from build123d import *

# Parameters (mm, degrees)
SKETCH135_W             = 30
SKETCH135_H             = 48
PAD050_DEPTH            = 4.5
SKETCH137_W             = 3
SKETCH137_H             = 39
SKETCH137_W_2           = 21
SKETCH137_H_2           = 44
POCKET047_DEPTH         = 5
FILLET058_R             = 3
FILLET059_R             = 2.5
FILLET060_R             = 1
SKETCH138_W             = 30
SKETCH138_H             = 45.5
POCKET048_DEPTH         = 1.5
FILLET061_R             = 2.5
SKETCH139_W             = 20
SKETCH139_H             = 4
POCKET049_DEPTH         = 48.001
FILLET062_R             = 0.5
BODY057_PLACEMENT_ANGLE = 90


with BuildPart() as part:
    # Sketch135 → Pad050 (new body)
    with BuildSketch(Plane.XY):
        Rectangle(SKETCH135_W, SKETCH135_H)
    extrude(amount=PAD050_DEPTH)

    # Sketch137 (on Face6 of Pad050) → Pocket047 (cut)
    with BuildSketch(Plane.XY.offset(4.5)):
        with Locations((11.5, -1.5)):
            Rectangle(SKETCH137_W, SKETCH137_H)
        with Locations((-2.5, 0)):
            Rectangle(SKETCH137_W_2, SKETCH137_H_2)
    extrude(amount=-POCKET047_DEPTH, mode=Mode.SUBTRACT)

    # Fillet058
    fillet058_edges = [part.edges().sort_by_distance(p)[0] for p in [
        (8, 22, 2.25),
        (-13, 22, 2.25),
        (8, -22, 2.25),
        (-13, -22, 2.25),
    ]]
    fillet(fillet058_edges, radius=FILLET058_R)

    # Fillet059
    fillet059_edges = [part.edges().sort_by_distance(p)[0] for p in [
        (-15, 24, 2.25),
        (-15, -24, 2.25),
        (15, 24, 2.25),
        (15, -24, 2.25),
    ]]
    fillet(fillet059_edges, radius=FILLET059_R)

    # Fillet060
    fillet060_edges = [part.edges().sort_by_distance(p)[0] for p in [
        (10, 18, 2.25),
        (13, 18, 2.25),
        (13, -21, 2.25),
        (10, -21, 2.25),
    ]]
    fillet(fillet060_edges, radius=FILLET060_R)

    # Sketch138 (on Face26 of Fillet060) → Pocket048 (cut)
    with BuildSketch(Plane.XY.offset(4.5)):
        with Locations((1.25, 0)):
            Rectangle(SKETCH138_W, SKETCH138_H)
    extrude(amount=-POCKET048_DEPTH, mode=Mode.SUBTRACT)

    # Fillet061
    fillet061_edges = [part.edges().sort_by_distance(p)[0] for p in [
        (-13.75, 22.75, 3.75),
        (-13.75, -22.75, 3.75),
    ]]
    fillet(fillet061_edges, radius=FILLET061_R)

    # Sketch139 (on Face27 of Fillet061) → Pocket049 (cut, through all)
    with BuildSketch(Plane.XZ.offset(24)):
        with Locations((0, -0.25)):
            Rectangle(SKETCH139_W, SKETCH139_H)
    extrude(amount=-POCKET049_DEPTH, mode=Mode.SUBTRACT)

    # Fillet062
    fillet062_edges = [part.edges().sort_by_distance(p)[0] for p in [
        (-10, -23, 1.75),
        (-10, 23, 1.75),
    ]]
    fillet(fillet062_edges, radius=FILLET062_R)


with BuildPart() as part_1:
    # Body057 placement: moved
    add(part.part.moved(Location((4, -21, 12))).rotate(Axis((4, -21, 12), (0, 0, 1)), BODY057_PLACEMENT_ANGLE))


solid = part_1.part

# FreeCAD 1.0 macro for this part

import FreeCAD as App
import Part
import Sketcher
Q = App.Units.Quantity


def edges_at(feature, points):
    """Names of the edges that pass closest to the given points."""
    edges = feature.Shape.Edges
    near = lambda p: min(range(len(edges)), key=lambda i: edges[i].distToShape(Part.Vertex(*p))[0])
    return sorted({f"Edge{near(p) + 1}" for p in points})

doc = App.newDocument("Part")
body = doc.addObject("PartDesign::Body", "Body")

# Sketch on XY plane
sketch1 = doc.addObject("Sketcher::SketchObject", "Sketch")
body.addObject(sketch1)
sketch1.AttachmentSupport = (doc.XY_Plane, [""])
sketch1.MapMode = "FlatFace"
sketch1.addGeometry(Part.LineSegment(App.Vector(-15, 24, 0), App.Vector(-15, -24, 0)), False)
sketch1.addGeometry(Part.LineSegment(App.Vector(-15, -24, 0), App.Vector(15, -24, 0)), False)
sketch1.addGeometry(Part.LineSegment(App.Vector(15, -24, 0), App.Vector(15, 24, 0)), False)
sketch1.addGeometry(Part.LineSegment(App.Vector(15, 24, 0), App.Vector(-15, 24, 0)), False)
sketch1.addConstraint(Sketcher.Constraint("Coincident", 0, 2, 1, 1))
sketch1.addConstraint(Sketcher.Constraint("Coincident", 1, 2, 2, 1))
sketch1.addConstraint(Sketcher.Constraint("Coincident", 2, 2, 3, 1))
sketch1.addConstraint(Sketcher.Constraint("Coincident", 3, 2, 0, 1))
sketch1.addConstraint(Sketcher.Constraint("Vertical", 0))
sketch1.addConstraint(Sketcher.Constraint("Horizontal", 1))
sketch1.addConstraint(Sketcher.Constraint("Vertical", 2))
sketch1.addConstraint(Sketcher.Constraint("Horizontal", 3))
sketch1.addConstraint(Sketcher.Constraint("Symmetric", 0, 2, 2, 2, -1, 1))
sketch1.addConstraint(Sketcher.Constraint("DistanceX", 1, 1, 1, 2, Q("30 mm")))
sketch1.addConstraint(Sketcher.Constraint("DistanceY", 0, 2, 0, 1, Q("48 mm")))
pad1 = doc.addObject("PartDesign::Pad", "Pad")
body.addObject(pad1)
pad1.Profile = sketch1
pad1.Length = 4.5

# Sketch on XY plane
sketch2 = doc.addObject("Sketcher::SketchObject", "Sketch001")
body.addObject(sketch2)
sketch2.AttachmentSupport = (doc.XY_Plane, [""])
sketch2.MapMode = "FlatFace"
sketch2.AttachmentOffset = App.Placement(App.Vector(0, 0, 4.5), App.Rotation())
sketch2.addGeometry(Part.LineSegment(App.Vector(10, 18, 0), App.Vector(10, -21, 0)), False)
sketch2.addGeometry(Part.LineSegment(App.Vector(10, -21, 0), App.Vector(13, -21, 0)), False)
sketch2.addGeometry(Part.LineSegment(App.Vector(13, -21, 0), App.Vector(13, 18, 0)), False)
sketch2.addGeometry(Part.LineSegment(App.Vector(13, 18, 0), App.Vector(10, 18, 0)), False)
sketch2.addGeometry(Part.LineSegment(App.Vector(-13, 22, 0), App.Vector(-13, -22, 0)), False)
sketch2.addGeometry(Part.LineSegment(App.Vector(-13, -22, 0), App.Vector(8, -22, 0)), False)
sketch2.addGeometry(Part.LineSegment(App.Vector(8, -22, 0), App.Vector(8, 22, 0)), False)
sketch2.addGeometry(Part.LineSegment(App.Vector(8, 22, 0), App.Vector(-13, 22, 0)), False)
sketch2.addConstraint(Sketcher.Constraint("Coincident", 0, 2, 1, 1))
sketch2.addConstraint(Sketcher.Constraint("Coincident", 1, 2, 2, 1))
sketch2.addConstraint(Sketcher.Constraint("Coincident", 2, 2, 3, 1))
sketch2.addConstraint(Sketcher.Constraint("Coincident", 3, 2, 0, 1))
sketch2.addConstraint(Sketcher.Constraint("Coincident", 4, 2, 5, 1))
sketch2.addConstraint(Sketcher.Constraint("Coincident", 5, 2, 6, 1))
sketch2.addConstraint(Sketcher.Constraint("Coincident", 6, 2, 7, 1))
sketch2.addConstraint(Sketcher.Constraint("Coincident", 7, 2, 4, 1))
sketch2.addConstraint(Sketcher.Constraint("Vertical", 0))
sketch2.addConstraint(Sketcher.Constraint("Horizontal", 1))
sketch2.addConstraint(Sketcher.Constraint("Vertical", 2))
sketch2.addConstraint(Sketcher.Constraint("Horizontal", 3))
sketch2.addConstraint(Sketcher.Constraint("Vertical", 4))
sketch2.addConstraint(Sketcher.Constraint("Horizontal", 5))
sketch2.addConstraint(Sketcher.Constraint("Vertical", 6))
sketch2.addConstraint(Sketcher.Constraint("Horizontal", 7))
sketch2.addConstraint(Sketcher.Constraint("DistanceX", 1, 1, 1, 2, Q("3 mm")))
sketch2.addConstraint(Sketcher.Constraint("DistanceX", 5, 1, 5, 2, Q("21 mm")))
sketch2.addConstraint(Sketcher.Constraint("DistanceY", 0, 2, 0, 1, Q("39 mm")))
sketch2.addConstraint(Sketcher.Constraint("DistanceY", 4, 2, 4, 1, Q("44 mm")))
sketch2.addConstraint(Sketcher.Constraint("DistanceX", -1, 1, 0, 2, Q("10 mm")))
sketch2.addConstraint(Sketcher.Constraint("DistanceY", 0, 2, -1, 1, Q("21 mm")))
sketch2.addConstraint(Sketcher.Constraint("DistanceX", 4, 2, -1, 1, Q("13 mm")))
sketch2.addConstraint(Sketcher.Constraint("DistanceY", 4, 2, -1, 1, Q("22 mm")))
pocket1 = doc.addObject("PartDesign::Pocket", "Pocket")
body.addObject(pocket1)
pocket1.Profile = sketch2
pocket1.Length = 5
doc.recompute()

fillet = doc.addObject("PartDesign::Fillet", "Fillet")
body.addObject(fillet)
fillet.Base = (pocket1, edges_at(pocket1, [
    (8, 22, 2.25),
    (-13, 22, 2.25),
    (8, -22, 2.25),
    (-13, -22, 2.25),
]))
fillet.Radius = 3
doc.recompute()

fillet2 = doc.addObject("PartDesign::Fillet", "Fillet001")
body.addObject(fillet2)
fillet2.Base = (fillet, edges_at(fillet, [
    (-15, 24, 2.25),
    (-15, -24, 2.25),
    (15, 24, 2.25),
    (15, -24, 2.25),
]))
fillet2.Radius = 2.5
doc.recompute()

fillet3 = doc.addObject("PartDesign::Fillet", "Fillet002")
body.addObject(fillet3)
fillet3.Base = (fillet2, edges_at(fillet2, [
    (10, 18, 2.25),
    (13, 18, 2.25),
    (13, -21, 2.25),
    (10, -21, 2.25),
]))
fillet3.Radius = 1

# Sketch on XY plane
sketch3 = doc.addObject("Sketcher::SketchObject", "Sketch002")
body.addObject(sketch3)
sketch3.AttachmentSupport = (doc.XY_Plane, [""])
sketch3.MapMode = "FlatFace"
sketch3.AttachmentOffset = App.Placement(App.Vector(0, 0, 4.5), App.Rotation())
sketch3.addGeometry(Part.LineSegment(App.Vector(-14, 23, 0), App.Vector(-14, -23, 0)), False)
sketch3.addGeometry(Part.LineSegment(App.Vector(-14, -23, 0), App.Vector(16, -23, 0)), False)
sketch3.addGeometry(Part.LineSegment(App.Vector(16, -23, 0), App.Vector(16, 23, 0)), False)
sketch3.addGeometry(Part.LineSegment(App.Vector(16, 23, 0), App.Vector(-14, 23, 0)), False)
sketch3.addConstraint(Sketcher.Constraint("Coincident", 0, 2, 1, 1))
sketch3.addConstraint(Sketcher.Constraint("Coincident", 1, 2, 2, 1))
sketch3.addConstraint(Sketcher.Constraint("Coincident", 2, 2, 3, 1))
sketch3.addConstraint(Sketcher.Constraint("Coincident", 3, 2, 0, 1))
sketch3.addConstraint(Sketcher.Constraint("Vertical", 0))
sketch3.addConstraint(Sketcher.Constraint("Horizontal", 1))
sketch3.addConstraint(Sketcher.Constraint("Vertical", 2))
sketch3.addConstraint(Sketcher.Constraint("Horizontal", 3))
sketch3.addConstraint(Sketcher.Constraint("DistanceX", 1, 1, 1, 2, Q("30 mm")))
sketch3.addConstraint(Sketcher.Constraint("DistanceY", 0, 2, 0, 1, Q("45.5 mm")))
sketch3.addConstraint(Sketcher.Constraint("DistanceX", 0, 2, -1, 1, Q("13.75 mm")))
sketch3.addConstraint(Sketcher.Constraint("DistanceY", 0, 2, -1, 1, Q("22.75 mm")))
pocket2 = doc.addObject("PartDesign::Pocket", "Pocket001")
body.addObject(pocket2)
pocket2.Profile = sketch3
pocket2.Length = 1.5
doc.recompute()

fillet4 = doc.addObject("PartDesign::Fillet", "Fillet003")
body.addObject(fillet4)
fillet4.Base = (pocket2, edges_at(pocket2, [(-13.75, 22.75, 3.75), (-13.75, -22.75, 3.75)]))
fillet4.Radius = 2.5

# Sketch on XZ plane
sketch4 = doc.addObject("Sketcher::SketchObject", "Sketch003")
body.addObject(sketch4)
sketch4.AttachmentSupport = (doc.XZ_Plane, [""])
sketch4.MapMode = "FlatFace"
sketch4.AttachmentOffset = App.Placement(App.Vector(0, 0, 24), App.Rotation())
sketch4.addGeometry(Part.LineSegment(App.Vector(-10, 1.8, 0), App.Vector(-10, -2.2, 0)), False)
sketch4.addGeometry(Part.LineSegment(App.Vector(-10, -2.2, 0), App.Vector(10, -2.2, 0)), False)
sketch4.addGeometry(Part.LineSegment(App.Vector(10, -2.2, 0), App.Vector(10, 1.8, 0)), False)
sketch4.addGeometry(Part.LineSegment(App.Vector(10, 1.8, 0), App.Vector(-10, 1.8, 0)), False)
sketch4.addConstraint(Sketcher.Constraint("Coincident", 0, 2, 1, 1))
sketch4.addConstraint(Sketcher.Constraint("Coincident", 1, 2, 2, 1))
sketch4.addConstraint(Sketcher.Constraint("Coincident", 2, 2, 3, 1))
sketch4.addConstraint(Sketcher.Constraint("Coincident", 3, 2, 0, 1))
sketch4.addConstraint(Sketcher.Constraint("Vertical", 0))
sketch4.addConstraint(Sketcher.Constraint("Horizontal", 1))
sketch4.addConstraint(Sketcher.Constraint("Vertical", 2))
sketch4.addConstraint(Sketcher.Constraint("Horizontal", 3))
sketch4.addConstraint(Sketcher.Constraint("DistanceX", 1, 1, 1, 2, Q("20 mm")))
sketch4.addConstraint(Sketcher.Constraint("DistanceY", 0, 2, 0, 1, Q("4 mm")))
sketch4.addConstraint(Sketcher.Constraint("DistanceX", 0, 2, -1, 1, Q("10 mm")))
sketch4.addConstraint(Sketcher.Constraint("DistanceY", 0, 2, -1, 1, Q("2.25 mm")))
pocket3 = doc.addObject("PartDesign::Pocket", "Pocket002")
body.addObject(pocket3)
pocket3.Profile = sketch4
pocket3.Type = "ThroughAll"
doc.recompute()

fillet5 = doc.addObject("PartDesign::Fillet", "Fillet004")
body.addObject(fillet5)
fillet5.Base = (pocket3, edges_at(pocket3, [(-10, -23, 1.75), (-10, 23, 1.75)]))
fillet5.Radius = 0.5
body2 = doc.addObject("PartDesign::Body", "Body001")
doc.recompute()

body.Placement = App.Placement(App.Vector(4, -21, 12), App.Rotation(App.Vector(0, 0, 1), 90))
boolean = doc.addObject("PartDesign::Boolean", "Boolean")
body2.addObject(boolean)
boolean.Type = "Fuse"
boolean.addObjects([body])

doc.recompute()
